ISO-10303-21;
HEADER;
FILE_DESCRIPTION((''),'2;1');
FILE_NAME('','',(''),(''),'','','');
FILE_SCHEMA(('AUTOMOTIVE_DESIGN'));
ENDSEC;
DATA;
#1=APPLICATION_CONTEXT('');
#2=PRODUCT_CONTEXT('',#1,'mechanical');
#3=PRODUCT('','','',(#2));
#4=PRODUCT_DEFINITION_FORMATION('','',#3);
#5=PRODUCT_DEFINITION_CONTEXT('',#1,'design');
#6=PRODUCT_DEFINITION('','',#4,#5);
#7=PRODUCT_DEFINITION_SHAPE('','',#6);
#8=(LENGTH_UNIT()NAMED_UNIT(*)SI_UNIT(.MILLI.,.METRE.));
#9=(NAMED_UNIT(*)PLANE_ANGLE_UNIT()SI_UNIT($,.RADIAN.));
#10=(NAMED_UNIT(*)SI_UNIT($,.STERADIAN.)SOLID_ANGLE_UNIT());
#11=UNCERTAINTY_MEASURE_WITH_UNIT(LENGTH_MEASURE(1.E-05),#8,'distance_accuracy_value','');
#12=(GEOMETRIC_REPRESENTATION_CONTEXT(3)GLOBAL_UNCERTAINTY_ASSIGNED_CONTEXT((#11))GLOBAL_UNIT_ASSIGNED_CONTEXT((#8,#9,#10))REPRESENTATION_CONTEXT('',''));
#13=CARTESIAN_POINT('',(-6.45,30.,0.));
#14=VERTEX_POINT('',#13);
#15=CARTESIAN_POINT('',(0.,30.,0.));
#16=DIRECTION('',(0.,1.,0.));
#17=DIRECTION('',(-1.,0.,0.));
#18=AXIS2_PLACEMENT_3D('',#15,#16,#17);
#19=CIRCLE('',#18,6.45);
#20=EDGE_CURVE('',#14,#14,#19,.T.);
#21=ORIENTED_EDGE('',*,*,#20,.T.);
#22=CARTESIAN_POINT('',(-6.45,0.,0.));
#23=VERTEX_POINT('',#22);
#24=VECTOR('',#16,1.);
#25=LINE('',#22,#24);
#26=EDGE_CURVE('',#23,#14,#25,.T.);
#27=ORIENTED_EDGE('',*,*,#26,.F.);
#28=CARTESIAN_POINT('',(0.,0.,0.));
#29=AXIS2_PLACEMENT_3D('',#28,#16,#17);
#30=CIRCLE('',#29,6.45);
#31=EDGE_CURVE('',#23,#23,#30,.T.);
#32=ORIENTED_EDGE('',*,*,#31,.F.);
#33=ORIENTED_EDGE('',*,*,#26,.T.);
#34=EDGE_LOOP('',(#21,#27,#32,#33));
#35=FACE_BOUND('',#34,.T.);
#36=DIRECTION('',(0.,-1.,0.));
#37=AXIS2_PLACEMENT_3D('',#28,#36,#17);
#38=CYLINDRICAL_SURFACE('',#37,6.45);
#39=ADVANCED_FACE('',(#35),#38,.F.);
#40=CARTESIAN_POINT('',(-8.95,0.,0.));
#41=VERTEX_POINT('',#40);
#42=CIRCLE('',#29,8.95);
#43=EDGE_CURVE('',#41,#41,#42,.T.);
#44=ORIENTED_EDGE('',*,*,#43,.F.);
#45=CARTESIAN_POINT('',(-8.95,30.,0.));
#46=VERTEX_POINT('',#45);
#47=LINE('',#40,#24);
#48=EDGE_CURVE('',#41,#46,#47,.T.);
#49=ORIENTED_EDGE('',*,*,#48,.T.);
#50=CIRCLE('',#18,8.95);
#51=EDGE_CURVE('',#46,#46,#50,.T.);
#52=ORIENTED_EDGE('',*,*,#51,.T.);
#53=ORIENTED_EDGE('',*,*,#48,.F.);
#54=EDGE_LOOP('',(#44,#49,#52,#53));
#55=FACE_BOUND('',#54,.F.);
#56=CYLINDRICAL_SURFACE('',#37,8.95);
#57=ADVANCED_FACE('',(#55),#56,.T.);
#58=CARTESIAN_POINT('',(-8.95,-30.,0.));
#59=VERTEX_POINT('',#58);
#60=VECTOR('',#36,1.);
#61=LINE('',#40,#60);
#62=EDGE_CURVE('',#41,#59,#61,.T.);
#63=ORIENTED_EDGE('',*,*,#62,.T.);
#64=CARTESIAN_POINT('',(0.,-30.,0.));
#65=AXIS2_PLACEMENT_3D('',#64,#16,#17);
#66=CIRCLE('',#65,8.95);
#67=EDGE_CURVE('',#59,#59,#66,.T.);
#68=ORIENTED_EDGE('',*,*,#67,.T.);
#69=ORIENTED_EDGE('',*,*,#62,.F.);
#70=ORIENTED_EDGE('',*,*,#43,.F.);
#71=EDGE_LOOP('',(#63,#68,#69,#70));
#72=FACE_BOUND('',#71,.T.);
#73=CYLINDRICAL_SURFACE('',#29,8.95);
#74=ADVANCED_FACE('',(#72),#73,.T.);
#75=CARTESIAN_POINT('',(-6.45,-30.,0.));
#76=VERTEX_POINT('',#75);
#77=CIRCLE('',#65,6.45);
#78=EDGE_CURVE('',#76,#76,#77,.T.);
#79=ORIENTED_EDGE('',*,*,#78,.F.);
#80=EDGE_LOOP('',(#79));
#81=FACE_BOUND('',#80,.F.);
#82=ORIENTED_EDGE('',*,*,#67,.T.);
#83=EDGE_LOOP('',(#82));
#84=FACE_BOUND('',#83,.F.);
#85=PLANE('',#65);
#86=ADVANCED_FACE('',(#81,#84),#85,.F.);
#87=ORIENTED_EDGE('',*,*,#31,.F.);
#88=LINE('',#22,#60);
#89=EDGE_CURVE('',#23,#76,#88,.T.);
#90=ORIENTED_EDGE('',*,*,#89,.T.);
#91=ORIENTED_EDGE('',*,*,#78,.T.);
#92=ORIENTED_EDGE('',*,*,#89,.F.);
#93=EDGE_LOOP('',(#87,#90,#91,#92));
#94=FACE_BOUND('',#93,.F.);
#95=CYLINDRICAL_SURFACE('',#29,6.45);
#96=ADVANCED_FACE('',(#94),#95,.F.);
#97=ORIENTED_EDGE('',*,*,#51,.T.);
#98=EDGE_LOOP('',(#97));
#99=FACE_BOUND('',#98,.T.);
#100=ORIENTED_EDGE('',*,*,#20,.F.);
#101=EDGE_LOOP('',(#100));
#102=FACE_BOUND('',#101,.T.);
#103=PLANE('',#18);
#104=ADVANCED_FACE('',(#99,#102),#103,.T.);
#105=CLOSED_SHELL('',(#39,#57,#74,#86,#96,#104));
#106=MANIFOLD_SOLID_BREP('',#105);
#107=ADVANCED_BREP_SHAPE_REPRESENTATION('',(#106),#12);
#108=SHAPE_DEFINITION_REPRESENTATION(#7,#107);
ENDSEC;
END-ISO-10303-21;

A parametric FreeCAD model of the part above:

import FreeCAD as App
import Part
import Sketcher
from FreeCAD import Vector

doc = App.newDocument("Part")
params = doc.addObject("Spreadsheet::Sheet", "Params")
for row, (alias, value) in enumerate([
    ("sketch1_diameter", "17.9 mm"),
    ("sketch1_diameter2", "12.9 mm"),
    ("pad1_length", "60 mm"),
], start=1):
    params.set(f"A{row}", alias)
    params.set(f"B{row}", "=" + value)
    params.setAlias(f"B{row}", alias)

body = doc.addObject("PartDesign::Body", "Body")

# Sketch on XZ plane
sketch1 = doc.addObject("Sketcher::SketchObject", "Sketch")
body.addObject(sketch1)
sketch1.AttachmentSupport = (doc.XZ_Plane, [""])
sketch1.MapMode = "FlatFace"
sketch1.addGeometry([
    Part.Circle(Vector(0, 0, 0), Vector(0, 0, 1), 9),
    Part.Circle(Vector(0, 0, 0), Vector(0, 0, 1), 6),
], False)
sketch1.addConstraint([
    Sketcher.Constraint("Coincident", 0, 3, -1, 1),
    Sketcher.Constraint("Coincident", 1, 3, -1, 1),
    Sketcher.Constraint("Diameter", 0, 17.9),
    Sketcher.Constraint("Diameter", 1, 12.9),
])
sketch1.setExpression("Constraints[2]", "Params.sketch1_diameter")
sketch1.setExpression("Constraints[3]", "Params.sketch1_diameter2")
pad1 = doc.addObject("PartDesign::Pad", "Pad")
body.addObject(pad1)
pad1.Profile = sketch1
pad1.setExpression("Length", "Params.pad1_length")
pad1.Midplane = True

doc.recompute()
